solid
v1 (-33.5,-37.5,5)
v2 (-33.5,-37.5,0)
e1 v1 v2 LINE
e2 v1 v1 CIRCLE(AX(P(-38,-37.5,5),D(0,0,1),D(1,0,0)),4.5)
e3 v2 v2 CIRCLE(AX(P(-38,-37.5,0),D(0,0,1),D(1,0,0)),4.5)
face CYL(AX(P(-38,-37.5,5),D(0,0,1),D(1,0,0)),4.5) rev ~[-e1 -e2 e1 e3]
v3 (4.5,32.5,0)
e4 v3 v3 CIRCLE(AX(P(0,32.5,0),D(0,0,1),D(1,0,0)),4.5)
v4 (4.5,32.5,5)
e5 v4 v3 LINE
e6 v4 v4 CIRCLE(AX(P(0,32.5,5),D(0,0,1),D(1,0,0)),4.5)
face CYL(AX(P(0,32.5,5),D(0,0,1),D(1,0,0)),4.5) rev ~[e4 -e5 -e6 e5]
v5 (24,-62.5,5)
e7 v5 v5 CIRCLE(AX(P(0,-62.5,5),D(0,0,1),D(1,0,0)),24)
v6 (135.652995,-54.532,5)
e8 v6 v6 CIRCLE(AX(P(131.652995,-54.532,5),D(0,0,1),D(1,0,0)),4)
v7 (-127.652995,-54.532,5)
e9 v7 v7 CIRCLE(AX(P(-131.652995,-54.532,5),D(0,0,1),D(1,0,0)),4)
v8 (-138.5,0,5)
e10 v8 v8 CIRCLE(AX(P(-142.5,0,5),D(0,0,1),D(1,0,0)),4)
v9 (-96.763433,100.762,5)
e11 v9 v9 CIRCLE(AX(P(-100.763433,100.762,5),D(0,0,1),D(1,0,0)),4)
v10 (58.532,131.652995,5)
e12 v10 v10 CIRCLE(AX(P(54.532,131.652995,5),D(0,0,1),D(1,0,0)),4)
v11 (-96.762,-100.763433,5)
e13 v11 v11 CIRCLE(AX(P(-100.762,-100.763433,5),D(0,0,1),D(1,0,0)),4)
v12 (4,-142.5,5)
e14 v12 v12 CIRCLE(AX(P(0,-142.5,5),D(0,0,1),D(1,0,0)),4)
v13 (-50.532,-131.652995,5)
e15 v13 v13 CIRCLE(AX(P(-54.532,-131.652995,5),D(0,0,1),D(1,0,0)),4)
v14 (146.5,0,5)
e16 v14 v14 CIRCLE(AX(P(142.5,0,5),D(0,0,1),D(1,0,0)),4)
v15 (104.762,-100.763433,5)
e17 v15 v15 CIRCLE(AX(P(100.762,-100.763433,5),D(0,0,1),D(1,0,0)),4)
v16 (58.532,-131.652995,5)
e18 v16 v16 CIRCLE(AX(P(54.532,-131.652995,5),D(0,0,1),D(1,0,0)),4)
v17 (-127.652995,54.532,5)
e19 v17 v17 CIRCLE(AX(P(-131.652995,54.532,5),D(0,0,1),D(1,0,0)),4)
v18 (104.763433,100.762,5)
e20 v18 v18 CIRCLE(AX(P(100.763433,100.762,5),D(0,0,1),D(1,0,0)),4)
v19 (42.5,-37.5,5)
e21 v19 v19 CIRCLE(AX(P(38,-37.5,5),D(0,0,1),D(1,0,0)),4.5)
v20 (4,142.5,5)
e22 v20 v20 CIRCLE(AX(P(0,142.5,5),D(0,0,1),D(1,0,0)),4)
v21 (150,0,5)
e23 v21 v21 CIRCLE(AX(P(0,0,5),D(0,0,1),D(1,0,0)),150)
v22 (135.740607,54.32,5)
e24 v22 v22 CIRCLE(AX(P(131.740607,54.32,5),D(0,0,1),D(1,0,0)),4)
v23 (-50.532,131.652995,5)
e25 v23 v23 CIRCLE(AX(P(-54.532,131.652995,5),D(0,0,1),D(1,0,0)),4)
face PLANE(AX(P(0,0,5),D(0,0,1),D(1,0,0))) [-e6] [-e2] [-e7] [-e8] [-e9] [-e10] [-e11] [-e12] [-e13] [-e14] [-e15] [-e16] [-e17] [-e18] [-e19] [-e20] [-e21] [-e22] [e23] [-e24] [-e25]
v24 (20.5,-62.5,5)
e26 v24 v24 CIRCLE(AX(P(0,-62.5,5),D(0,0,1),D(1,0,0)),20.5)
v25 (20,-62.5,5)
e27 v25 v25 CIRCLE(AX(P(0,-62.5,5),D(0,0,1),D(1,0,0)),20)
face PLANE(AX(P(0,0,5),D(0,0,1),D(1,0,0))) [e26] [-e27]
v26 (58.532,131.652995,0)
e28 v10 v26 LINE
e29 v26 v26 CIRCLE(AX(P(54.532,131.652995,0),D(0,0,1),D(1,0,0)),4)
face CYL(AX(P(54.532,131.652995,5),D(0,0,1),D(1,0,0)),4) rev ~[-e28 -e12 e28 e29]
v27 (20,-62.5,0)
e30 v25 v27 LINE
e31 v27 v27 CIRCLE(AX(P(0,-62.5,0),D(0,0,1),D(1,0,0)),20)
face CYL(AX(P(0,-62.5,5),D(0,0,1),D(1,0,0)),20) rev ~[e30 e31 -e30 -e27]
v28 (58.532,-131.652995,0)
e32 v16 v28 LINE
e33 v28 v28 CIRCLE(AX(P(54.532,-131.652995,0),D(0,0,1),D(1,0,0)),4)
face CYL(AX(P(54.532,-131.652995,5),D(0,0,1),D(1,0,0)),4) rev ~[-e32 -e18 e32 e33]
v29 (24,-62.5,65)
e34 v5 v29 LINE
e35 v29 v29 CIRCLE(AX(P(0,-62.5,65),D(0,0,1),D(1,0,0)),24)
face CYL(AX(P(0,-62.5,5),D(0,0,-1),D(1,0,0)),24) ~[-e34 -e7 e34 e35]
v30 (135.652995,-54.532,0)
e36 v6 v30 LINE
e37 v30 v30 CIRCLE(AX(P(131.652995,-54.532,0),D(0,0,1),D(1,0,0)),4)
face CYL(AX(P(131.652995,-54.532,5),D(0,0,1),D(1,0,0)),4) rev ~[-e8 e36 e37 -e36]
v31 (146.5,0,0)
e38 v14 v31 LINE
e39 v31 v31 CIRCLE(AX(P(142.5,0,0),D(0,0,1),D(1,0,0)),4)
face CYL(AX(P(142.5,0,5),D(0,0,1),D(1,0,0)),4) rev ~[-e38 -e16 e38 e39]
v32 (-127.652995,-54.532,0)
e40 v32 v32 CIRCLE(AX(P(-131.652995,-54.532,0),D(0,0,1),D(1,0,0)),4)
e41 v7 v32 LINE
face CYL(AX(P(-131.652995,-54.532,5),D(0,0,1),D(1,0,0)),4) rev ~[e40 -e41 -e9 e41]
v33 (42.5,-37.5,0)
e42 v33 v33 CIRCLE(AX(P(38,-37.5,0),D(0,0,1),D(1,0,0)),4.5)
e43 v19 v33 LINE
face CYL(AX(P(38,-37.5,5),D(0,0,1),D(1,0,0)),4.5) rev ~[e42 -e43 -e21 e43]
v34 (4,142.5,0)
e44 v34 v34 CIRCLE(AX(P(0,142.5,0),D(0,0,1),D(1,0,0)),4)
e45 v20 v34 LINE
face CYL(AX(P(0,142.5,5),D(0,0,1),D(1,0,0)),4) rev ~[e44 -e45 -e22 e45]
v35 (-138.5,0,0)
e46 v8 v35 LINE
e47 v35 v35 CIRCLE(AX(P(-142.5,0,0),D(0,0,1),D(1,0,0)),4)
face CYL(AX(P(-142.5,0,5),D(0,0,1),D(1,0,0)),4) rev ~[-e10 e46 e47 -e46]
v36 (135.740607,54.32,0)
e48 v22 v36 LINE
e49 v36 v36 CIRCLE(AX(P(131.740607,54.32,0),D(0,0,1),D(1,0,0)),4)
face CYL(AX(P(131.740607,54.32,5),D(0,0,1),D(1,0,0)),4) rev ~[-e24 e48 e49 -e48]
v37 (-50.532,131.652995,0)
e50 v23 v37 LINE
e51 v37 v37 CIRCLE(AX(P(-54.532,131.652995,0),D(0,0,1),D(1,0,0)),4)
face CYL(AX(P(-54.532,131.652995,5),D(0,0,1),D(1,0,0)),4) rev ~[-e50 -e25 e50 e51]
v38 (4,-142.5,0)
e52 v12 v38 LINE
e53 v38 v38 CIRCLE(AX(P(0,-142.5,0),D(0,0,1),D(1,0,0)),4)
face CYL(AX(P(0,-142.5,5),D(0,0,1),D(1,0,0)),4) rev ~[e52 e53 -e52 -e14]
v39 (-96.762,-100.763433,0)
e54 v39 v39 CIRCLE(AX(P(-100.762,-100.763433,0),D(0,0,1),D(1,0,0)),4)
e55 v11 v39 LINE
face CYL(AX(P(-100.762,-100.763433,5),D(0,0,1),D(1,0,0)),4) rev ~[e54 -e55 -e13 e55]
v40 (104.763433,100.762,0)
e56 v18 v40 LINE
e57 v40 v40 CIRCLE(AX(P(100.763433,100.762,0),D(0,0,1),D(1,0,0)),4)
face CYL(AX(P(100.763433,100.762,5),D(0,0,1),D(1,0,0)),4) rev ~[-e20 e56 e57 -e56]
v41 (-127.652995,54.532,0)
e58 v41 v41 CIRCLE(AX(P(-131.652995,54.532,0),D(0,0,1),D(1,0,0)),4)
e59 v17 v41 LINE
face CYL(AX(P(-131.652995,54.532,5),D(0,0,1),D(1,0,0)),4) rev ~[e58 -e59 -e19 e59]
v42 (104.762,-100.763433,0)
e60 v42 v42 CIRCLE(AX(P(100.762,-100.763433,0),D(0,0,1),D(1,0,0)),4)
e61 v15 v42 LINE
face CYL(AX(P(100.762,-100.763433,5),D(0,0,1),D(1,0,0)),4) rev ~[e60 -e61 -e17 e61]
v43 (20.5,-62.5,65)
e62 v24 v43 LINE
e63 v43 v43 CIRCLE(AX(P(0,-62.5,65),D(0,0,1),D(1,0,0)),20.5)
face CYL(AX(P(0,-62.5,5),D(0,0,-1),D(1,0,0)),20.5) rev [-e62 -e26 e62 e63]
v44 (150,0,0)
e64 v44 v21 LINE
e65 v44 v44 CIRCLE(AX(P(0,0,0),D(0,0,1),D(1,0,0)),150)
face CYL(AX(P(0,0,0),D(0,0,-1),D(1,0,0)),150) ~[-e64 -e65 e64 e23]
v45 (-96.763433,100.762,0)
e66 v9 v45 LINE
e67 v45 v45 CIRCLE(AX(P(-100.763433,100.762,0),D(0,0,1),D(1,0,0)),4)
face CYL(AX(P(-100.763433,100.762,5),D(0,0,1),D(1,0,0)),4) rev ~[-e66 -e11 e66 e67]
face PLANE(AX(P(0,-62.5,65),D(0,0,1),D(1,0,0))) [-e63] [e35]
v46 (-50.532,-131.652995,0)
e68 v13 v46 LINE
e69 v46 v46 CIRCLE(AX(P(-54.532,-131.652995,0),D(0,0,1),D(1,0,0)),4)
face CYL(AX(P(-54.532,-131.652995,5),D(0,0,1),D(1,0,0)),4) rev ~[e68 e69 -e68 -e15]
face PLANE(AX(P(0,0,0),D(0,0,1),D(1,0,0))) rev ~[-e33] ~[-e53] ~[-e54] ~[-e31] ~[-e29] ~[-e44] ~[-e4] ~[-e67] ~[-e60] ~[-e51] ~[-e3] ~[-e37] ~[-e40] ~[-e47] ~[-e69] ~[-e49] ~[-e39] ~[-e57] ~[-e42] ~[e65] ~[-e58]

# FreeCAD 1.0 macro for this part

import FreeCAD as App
import Part
import Sketcher
Q = App.Units.Quantity

doc = App.newDocument("Part")
body = doc.addObject("PartDesign::Body", "Body")

# Sketch on XY plane
sketch1 = body.newObject("Sketcher::SketchObject", "Sketch")
sketch1.AttachmentSupport = (doc.getObject("XY_Plane"), [""])
sketch1.MapMode = "FlatFace"
sketch1.addGeometry(Part.Circle(App.Vector(0, 0, 0), App.Vector(0, 0, 1), 150), False)
sketch1.addConstraint([
    Sketcher.Constraint("Coincident", 0, 3, -1, 1),
    Sketcher.Constraint("Diameter", 0, Q("300 mm")),
])
pad1 = body.newObject("PartDesign::Pad", "Pad")
pad1.Profile = sketch1
pad1.Length = 5

# Sketch on XY plane
sketch2 = body.newObject("Sketcher::SketchObject", "Sketch001")
sketch2.AttachmentSupport = (doc.getObject("XY_Plane"), [""])
sketch2.MapMode = "FlatFace"
sketch2.AttachmentOffset = App.Placement(App.Vector(0, 0, 5), App.Rotation())
sketch2.addGeometry([
    Part.Circle(App.Vector(0, 142.5, 0), App.Vector(0, 0, 1), 4),
    Part.Circle(App.Vector(-142.5, 0, 0), App.Vector(0, 0, 1), 4),
    Part.Circle(App.Vector(0, -142.5, 0), App.Vector(0, 0, 1), 4),
    Part.Circle(App.Vector(142.5, 0, 0), App.Vector(0, 0, 1), 4),
], False)
sketch2.addConstraint([
    Sketcher.Constraint("Equal", 0, 1),
    Sketcher.Constraint("Equal", 1, 2),
    Sketcher.Constraint("Equal", 2, 3),
    Sketcher.Constraint("Symmetric", 0, 3, 2, 3, -1, 1),
    Sketcher.Constraint("Symmetric", 1, 3, 3, 3, -1, 1),
    Sketcher.Constraint("PointOnObject", 0, 3, -2),
    Sketcher.Constraint("PointOnObject", 1, 3, -1),
    Sketcher.Constraint("Diameter", 0, Q("8 mm")),
    Sketcher.Constraint("DistanceY", 2, 3, 0, 3, Q("285 mm")),
    Sketcher.Constraint("DistanceX", 1, 3, 3, 3, Q("285 mm")),
])
pocket1 = body.newObject("PartDesign::Pocket", "Pocket")
pocket1.Profile = sketch2
pocket1.Type = "ThroughAll"

# Sketch on XY plane
sketch3 = body.newObject("Sketcher::SketchObject", "Sketch002")
sketch3.AttachmentSupport = (doc.getObject("XY_Plane"), [""])
sketch3.MapMode = "FlatFace"
sketch3.AttachmentOffset = App.Placement(App.Vector(0, 0, 5), App.Rotation())
sketch3.addGeometry([
    Part.Circle(App.Vector(0, -62.5, 0), App.Vector(0, 0, 1), 20),
    Part.Circle(App.Vector(0, 32.5, 0), App.Vector(0, 0, 1), 4.5),
    Part.Circle(App.Vector(-38, -37.5, 0), App.Vector(0, 0, 1), 4.5),
    Part.Circle(App.Vector(38, -37.5, 0), App.Vector(0, 0, 1), 4.5),
], False)
sketch3.addConstraint([
    Sketcher.Constraint("Equal", 1, 2),
    Sketcher.Constraint("Equal", 2, 3),
    Sketcher.Constraint("Symmetric", 2, 3, 3, 3, -2),
    Sketcher.Constraint("PointOnObject", 0, 3, -2),
    Sketcher.Constraint("PointOnObject", 1, 3, -2),
    Sketcher.Constraint("Diameter", 0, Q("40 mm")),
    Sketcher.Constraint("Diameter", 1, Q("9 mm")),
    Sketcher.Constraint("DistanceX", 2, 3, -1, 1, Q("38 mm")),
    Sketcher.Constraint("DistanceY", 0, 3, 1, 3, Q("95 mm")),
    Sketcher.Constraint("DistanceY", 0, 3, 2, 3, Q("25 mm")),
    Sketcher.Constraint("DistanceY", 0, 3, -1, 1, Q("62.5 mm")),
])
pocket2 = body.newObject("PartDesign::Pocket", "Pocket001")
pocket2.Profile = sketch3
pocket2.Length = 5

# Sketch on XY plane
sketch4 = body.newObject("Sketcher::SketchObject", "Sketch003")
sketch4.AttachmentSupport = (doc.getObject("XY_Plane"), [""])
sketch4.MapMode = "FlatFace"
sketch4.AttachmentOffset = App.Placement(App.Vector(0, 0, 5), App.Rotation())
sketch4.addGeometry([
    Part.Circle(App.Vector(0, -62.5, 0), App.Vector(0, 0, 1), 20),
    Part.Circle(App.Vector(0, 32.5, 0), App.Vector(0, 0, 1), 4.5),
    Part.Circle(App.Vector(-38, -37.5, 0), App.Vector(0, 0, 1), 4.5),
    Part.Circle(App.Vector(38, -37.5, 0), App.Vector(0, 0, 1), 4.5),
], False)
sketch4.addConstraint([
    Sketcher.Constraint("Equal", 1, 2),
    Sketcher.Constraint("Equal", 2, 3),
    Sketcher.Constraint("Symmetric", 2, 3, 3, 3, -2),
    Sketcher.Constraint("PointOnObject", 0, 3, -2),
    Sketcher.Constraint("PointOnObject", 1, 3, -2),
    Sketcher.Constraint("Diameter", 0, Q("40 mm")),
    Sketcher.Constraint("Diameter", 1, Q("9 mm")),
    Sketcher.Constraint("DistanceX", 2, 3, -1, 1, Q("38 mm")),
    Sketcher.Constraint("DistanceY", 0, 3, 1, 3, Q("95 mm")),
    Sketcher.Constraint("DistanceY", 0, 3, 2, 3, Q("25 mm")),
    Sketcher.Constraint("DistanceY", 0, 3, -1, 1, Q("62.5 mm")),
])
pocket3 = body.newObject("PartDesign::Pocket", "Pocket002")
pocket3.Profile = sketch4
pocket3.Length = 5

# Sketch on XY plane
sketch5 = body.newObject("Sketcher::SketchObject", "Sketch004")
sketch5.AttachmentSupport = (doc.getObject("XY_Plane"), [""])
sketch5.MapMode = "FlatFace"
sketch5.AttachmentOffset = App.Placement(App.Vector(0, 0, 5), App.Rotation())
sketch5.addGeometry([
    Part.Circle(App.Vector(100.8, 100.8, 0), App.Vector(0, 0, 1), 4),  # 0
    Part.Circle(App.Vector(100.8, -100.8, 0), App.Vector(0, 0, 1), 4),  # 1
    Part.Circle(App.Vector(-54.5, -131.7, 0), App.Vector(0, 0, 1), 4),  # 2
    Part.Circle(App.Vector(-100.8, 100.8, 0), App.Vector(0, 0, 1), 4),  # 3
    Part.Circle(App.Vector(-100.8, -100.8, 0), App.Vector(0, 0, 1), 4),  # 4
    Part.Circle(App.Vector(-131.7, -54.5, 0), App.Vector(0, 0, 1), 4),  # 5
    Part.Circle(App.Vector(-131.7, 54.5, 0), App.Vector(0, 0, 1), 4),  # 6
    Part.Circle(App.Vector(-54.5, 131.7, 0), App.Vector(0, 0, 1), 4),  # 7
    Part.Circle(App.Vector(54.5, 131.7, 0), App.Vector(0, 0, 1), 4),  # 8
    Part.Circle(App.Vector(131.7, 54.3, 0), App.Vector(0, 0, 1), 4),  # 9
    Part.Circle(App.Vector(54.5, -131.7, 0), App.Vector(0, 0, 1), 4),  # 10
    Part.Circle(App.Vector(131.7, -54.5, 0), App.Vector(0, 0, 1), 4),  # 11
], False)
sketch5.addConstraint([
    Sketcher.Constraint("Equal", 0, 1),
    Sketcher.Constraint("Equal", 1, 2),
    Sketcher.Constraint("Equal", 2, 3),
    Sketcher.Constraint("Equal", 3, 4),
    Sketcher.Constraint("Equal", 4, 5),
    Sketcher.Constraint("Equal", 5, 6),
    Sketcher.Constraint("Equal", 6, 7),
    Sketcher.Constraint("Equal", 7, 8),
    Sketcher.Constraint("Equal", 8, 9),
    Sketcher.Constraint("Equal", 9, 10),
    Sketcher.Constraint("Equal", 10, 11),
    Sketcher.Constraint("Symmetric", 2, 3, 8, 3, -1, 1),
    Sketcher.Constraint("Symmetric", 7, 3, 10, 3, -1, 1),
    Sketcher.Constraint("Symmetric", 6, 3, 11, 3, -1, 1),
    Sketcher.Constraint("Symmetric", 0, 3, 3, 3, -2),
    Sketcher.Constraint("Symmetric", 1, 3, 4, 3, -2),
    Sketcher.Constraint("Symmetric", 7, 3, 8, 3, -2),
    Sketcher.Constraint("Symmetric", 5, 3, 11, 3, -2),
    Sketcher.Constraint("Diameter", 0, Q("8 mm")),
    Sketcher.Constraint("DistanceY", -1, 1, 9, 3, Q("54.32 mm")),
    Sketcher.Constraint("DistanceX", 4, 3, 2, 3, Q("46.23 mm")),
    Sketcher.Constraint("DistanceY", 6, 3, 3, 3, Q("46.23 mm")),
    Sketcher.Constraint("DistanceY", -1, 1, 0, 3, Q("100.762 mm")),
    Sketcher.Constraint("DistanceX", -1, 1, 1, 3, Q("100.762 mm")),
    Sketcher.Constraint("DistanceY", 2, 3, 1, 3, Q("30.889562 mm")),
    Sketcher.Constraint("DistanceX", 5, 3, 3, 3, Q("30.889562 mm")),
    Sketcher.Constraint("DistanceX", 5, 3, 0, 3, Q("232.416428 mm")),
    Sketcher.Constraint("DistanceY", 4, 3, 7, 3, Q("232.416428 mm")),
    Sketcher.Constraint("DistanceX", 3, 3, 9, 3, Q("232.50404 mm")),
])
pocket4 = body.newObject("PartDesign::Pocket", "Pocket003")
pocket4.Profile = sketch5
pocket4.Length = 5

# Sketch on XY plane
sketch6 = body.newObject("Sketcher::SketchObject", "Sketch005")
sketch6.AttachmentSupport = (doc.getObject("XY_Plane"), [""])
sketch6.MapMode = "FlatFace"
sketch6.AttachmentOffset = App.Placement(App.Vector(0, 0, 5), App.Rotation())
sketch6.addGeometry([
    Part.Circle(App.Vector(0, -62, 0), App.Vector(0, 0, 1), 24),
    Part.Circle(App.Vector(0, -62, 0), App.Vector(0, 0, 1), 20),
], False)
sketch6.addConstraint([
    Sketcher.Constraint("Coincident", 1, 3, 0, 3),
    Sketcher.Constraint("PointOnObject", 0, 3, -2),
    Sketcher.Constraint("Diameter", 0, Q("48 mm")),
    Sketcher.Constraint("Diameter", 1, Q("41 mm")),
    Sketcher.Constraint("DistanceY", 0, 3, -1, 1, Q("62.5 mm")),
])
pad2 = body.newObject("PartDesign::Pad", "Pad001")
pad2.Profile = sketch6
pad2.Length = 60

doc.recompute()
